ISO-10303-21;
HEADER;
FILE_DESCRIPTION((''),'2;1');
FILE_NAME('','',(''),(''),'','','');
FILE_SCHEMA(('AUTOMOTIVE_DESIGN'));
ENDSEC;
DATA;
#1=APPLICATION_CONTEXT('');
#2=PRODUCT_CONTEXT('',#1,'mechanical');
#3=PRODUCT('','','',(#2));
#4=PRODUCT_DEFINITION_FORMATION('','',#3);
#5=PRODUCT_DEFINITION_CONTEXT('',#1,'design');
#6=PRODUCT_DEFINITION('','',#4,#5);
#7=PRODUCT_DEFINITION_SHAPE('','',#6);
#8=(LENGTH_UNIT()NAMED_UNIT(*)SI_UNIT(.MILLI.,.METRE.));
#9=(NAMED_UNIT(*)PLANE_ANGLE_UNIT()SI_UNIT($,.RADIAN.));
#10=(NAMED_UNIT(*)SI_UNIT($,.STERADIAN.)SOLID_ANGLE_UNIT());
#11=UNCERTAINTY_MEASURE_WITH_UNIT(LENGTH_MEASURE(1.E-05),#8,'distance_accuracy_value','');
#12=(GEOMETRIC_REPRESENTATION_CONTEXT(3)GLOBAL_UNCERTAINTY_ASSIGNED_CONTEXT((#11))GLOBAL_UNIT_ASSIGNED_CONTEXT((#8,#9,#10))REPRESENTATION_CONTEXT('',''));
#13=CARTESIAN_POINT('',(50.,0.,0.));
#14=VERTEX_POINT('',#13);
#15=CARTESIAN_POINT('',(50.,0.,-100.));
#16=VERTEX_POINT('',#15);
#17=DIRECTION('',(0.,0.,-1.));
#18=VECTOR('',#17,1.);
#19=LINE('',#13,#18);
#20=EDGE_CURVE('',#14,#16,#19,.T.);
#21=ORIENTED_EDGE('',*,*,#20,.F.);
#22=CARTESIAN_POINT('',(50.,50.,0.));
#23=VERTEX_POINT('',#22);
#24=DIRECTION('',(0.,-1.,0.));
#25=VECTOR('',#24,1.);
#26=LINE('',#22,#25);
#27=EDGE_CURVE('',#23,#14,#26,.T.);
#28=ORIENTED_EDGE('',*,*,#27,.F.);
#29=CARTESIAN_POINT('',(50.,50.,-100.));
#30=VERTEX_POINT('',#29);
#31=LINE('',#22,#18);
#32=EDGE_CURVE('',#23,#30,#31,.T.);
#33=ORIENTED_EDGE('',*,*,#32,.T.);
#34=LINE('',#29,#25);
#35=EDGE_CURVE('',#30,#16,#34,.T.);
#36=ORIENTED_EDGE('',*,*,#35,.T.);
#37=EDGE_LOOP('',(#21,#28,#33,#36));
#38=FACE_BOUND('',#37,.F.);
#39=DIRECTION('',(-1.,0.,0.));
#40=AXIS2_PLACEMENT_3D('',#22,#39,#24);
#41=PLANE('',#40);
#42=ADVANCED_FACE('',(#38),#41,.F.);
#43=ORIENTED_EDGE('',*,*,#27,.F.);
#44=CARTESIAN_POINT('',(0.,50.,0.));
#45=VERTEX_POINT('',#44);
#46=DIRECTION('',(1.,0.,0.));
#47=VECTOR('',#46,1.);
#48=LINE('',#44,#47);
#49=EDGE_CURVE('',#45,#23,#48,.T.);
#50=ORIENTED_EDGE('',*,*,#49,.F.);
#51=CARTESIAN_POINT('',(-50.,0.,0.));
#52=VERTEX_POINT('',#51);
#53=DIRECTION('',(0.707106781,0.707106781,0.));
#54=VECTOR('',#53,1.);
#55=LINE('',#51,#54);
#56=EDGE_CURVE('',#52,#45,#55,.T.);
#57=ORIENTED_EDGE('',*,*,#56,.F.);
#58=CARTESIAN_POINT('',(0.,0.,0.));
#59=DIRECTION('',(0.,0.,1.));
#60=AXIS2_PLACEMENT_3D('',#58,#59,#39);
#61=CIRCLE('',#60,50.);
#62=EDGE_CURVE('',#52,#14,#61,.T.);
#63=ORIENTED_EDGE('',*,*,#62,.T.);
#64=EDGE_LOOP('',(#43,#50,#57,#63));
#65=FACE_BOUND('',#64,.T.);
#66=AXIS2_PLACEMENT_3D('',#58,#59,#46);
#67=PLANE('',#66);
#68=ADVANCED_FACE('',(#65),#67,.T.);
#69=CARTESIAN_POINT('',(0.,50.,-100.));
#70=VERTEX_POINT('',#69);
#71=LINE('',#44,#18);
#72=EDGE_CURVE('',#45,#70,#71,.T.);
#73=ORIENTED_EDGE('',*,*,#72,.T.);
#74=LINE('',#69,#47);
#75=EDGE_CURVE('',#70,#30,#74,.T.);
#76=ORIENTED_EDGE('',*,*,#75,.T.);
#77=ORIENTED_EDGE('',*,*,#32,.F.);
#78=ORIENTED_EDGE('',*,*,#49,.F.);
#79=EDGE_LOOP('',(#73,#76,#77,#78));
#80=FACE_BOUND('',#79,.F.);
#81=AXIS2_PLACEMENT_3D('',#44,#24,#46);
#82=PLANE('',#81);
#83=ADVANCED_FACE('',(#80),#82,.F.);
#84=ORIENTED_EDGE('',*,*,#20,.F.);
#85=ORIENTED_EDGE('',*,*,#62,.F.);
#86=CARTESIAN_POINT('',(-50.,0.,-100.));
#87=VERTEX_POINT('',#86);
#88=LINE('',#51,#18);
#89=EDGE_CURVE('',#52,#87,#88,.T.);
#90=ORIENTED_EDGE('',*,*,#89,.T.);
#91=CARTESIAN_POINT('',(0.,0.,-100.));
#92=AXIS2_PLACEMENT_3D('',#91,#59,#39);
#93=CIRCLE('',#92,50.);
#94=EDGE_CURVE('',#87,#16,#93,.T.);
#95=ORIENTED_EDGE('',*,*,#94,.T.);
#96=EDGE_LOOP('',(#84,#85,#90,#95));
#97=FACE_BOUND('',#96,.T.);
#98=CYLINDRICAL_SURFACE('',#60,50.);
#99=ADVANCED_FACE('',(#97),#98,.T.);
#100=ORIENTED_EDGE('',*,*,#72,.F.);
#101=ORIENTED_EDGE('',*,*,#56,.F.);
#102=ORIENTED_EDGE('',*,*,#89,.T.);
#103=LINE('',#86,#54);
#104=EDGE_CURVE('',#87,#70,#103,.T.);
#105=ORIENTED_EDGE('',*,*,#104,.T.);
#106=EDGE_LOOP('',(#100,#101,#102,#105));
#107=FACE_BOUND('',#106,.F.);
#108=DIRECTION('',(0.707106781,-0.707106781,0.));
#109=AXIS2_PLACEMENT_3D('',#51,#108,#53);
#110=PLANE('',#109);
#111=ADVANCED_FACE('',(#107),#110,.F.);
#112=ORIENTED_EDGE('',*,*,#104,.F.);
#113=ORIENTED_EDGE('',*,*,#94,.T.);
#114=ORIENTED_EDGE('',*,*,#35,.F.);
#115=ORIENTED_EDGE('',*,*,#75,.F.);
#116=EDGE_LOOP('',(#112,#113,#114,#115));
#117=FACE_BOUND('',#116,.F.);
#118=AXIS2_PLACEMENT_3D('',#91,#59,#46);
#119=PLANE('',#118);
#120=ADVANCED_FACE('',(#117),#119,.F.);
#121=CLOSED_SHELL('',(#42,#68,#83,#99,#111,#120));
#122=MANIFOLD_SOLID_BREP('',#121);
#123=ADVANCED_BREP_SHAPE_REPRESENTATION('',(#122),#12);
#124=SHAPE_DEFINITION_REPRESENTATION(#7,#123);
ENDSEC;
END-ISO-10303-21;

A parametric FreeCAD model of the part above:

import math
import FreeCAD as App
import Part
import Sketcher

V = App.Vector
Q = App.Units.Quantity

doc = App.newDocument("Part")
body = doc.addObject("PartDesign::Body", "Body")

# Sketch on XY plane
sketch1 = body.newObject("Sketcher::SketchObject", "Sketch")
sketch1.AttachmentSupport = (doc.getObject("XY_Plane"), [""])
sketch1.MapMode = "FlatFace"
sketch1.addGeometry([
    Part.LineSegment(V(50, 50, 0), V(0, 50, 0)),
    Part.LineSegment(V(0, 50, 0), V(-50, 0, 0)),
    Part.ArcOfCircle(Part.Circle(V(0, 0, 0), V(0, 0, 1), 50), math.radians(180), math.radians(360)),
    Part.LineSegment(V(50, 0, 0), V(50, 50, 0)),
], False)
sketch1.addConstraint([
    Sketcher.Constraint("Coincident", 0, 2, 1, 1),
    Sketcher.Constraint("Coincident", 1, 2, 2, 1),
    Sketcher.Constraint("Tangent", 2, 2, 3, 1),
    Sketcher.Constraint("Coincident", 3, 2, 0, 1),
    Sketcher.Constraint("Horizontal", 0),
    Sketcher.Constraint("Vertical", 3),
    Sketcher.Constraint("Coincident", 2, 3, -1, 1),
    Sketcher.Constraint("PointOnObject", 0, 2, -2),
    Sketcher.Constraint("PointOnObject", 1, 2, -1),
    Sketcher.Constraint("Equal", 0, 3),
    Sketcher.Constraint("Radius", 2, Q("1.9685 in")),
])
pad1 = body.newObject("PartDesign::Pad", "Pad")
pad1.Profile = sketch1
pad1.Length = Q("3.9370079 in")
pad1.Reversed = True

doc.recompute()
